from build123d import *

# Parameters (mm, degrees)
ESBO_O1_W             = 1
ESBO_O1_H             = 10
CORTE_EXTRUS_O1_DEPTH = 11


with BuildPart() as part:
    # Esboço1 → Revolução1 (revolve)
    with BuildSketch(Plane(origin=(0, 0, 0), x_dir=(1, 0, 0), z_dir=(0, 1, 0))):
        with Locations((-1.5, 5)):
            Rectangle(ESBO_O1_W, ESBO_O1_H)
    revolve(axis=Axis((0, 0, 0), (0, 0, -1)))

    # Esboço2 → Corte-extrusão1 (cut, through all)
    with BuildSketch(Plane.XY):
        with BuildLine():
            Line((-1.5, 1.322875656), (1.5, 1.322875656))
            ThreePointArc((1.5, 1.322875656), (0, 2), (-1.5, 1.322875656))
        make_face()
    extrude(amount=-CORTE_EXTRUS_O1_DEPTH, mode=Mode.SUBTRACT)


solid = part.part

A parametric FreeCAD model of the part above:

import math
import FreeCAD as App
import Part
import Sketcher

V = App.Vector
Q = App.Units.Quantity


def add_polygon(sketch, points):
    """Adds a closed chain of lines whose ends are joined by coincident constraints."""
    first, n = sketch.GeometryCount, len(points)
    for a, b in zip(points, points[1:] + points[:1]):
        sketch.addGeometry(Part.LineSegment(App.Vector(*a, 0), App.Vector(*b, 0)), False)
    for i in range(n):
        sketch.addConstraint(Sketcher.Constraint("Coincident", first + i, 2, first + (i + 1) % n, 1))

doc = App.newDocument("Part")
body = doc.addObject("PartDesign::Body", "Body")

sketch1 = doc.addObject("Sketcher::SketchObject", "Sketch")
body.addObject(sketch1)
sketch1.AttachmentSupport = (doc.XZ_Plane, [""])
sketch1.MapMode = "FlatFace"
add_polygon(sketch1, [(-2, -10), (-2, 0), (-1, 0), (-1, -10)])
sketch1.addConstraint([
    Sketcher.Constraint("Vertical", 0),
    Sketcher.Constraint("Horizontal", 1),
    Sketcher.Constraint("Vertical", 2),
    Sketcher.Constraint("Horizontal", 3),
    Sketcher.Constraint("PointOnObject", 0, 2, -1),
    Sketcher.Constraint("DistanceX", 1, 1, 1, 2, Q("1 mm")),
    Sketcher.Constraint("DistanceY", 0, 1, 0, 2, Q("10 mm")),
    Sketcher.Constraint("DistanceX", 0, 2, -1, 1, Q("2 mm")),
])
revolution = doc.addObject("PartDesign::Revolution", "Revolution")
body.addObject(revolution)
revolution.Profile = sketch1
revolution.ReferenceAxis = (sketch1, ["V_Axis"])
revolution.Angle = 360

sketch2 = doc.addObject("Sketcher::SketchObject", "Sketch001")
body.addObject(sketch2)
sketch2.AttachmentSupport = (doc.XY_Plane, [""])
sketch2.MapMode = "FlatFace"
sketch2.addGeometry([
    Part.LineSegment(V(-1.5, 1.3, 0), V(1.5, 1.3, 0)),
    Part.ArcOfCircle(Part.Circle(V(0, 0, 0), V(0, 0, 1), 2), math.radians(41), math.radians(139)),
], False)
sketch2.addConstraint([
    Sketcher.Constraint("Coincident", 0, 1, 1, 2),
    Sketcher.Constraint("Coincident", 1, 1, 0, 2),
    Sketcher.Constraint("Horizontal", 0),
    Sketcher.Constraint("Coincident", 1, 3, -1, 1),
    Sketcher.Constraint("Radius", 1, Q("2 mm")),
    Sketcher.Constraint("DistanceX", 0, 1, 0, 2, Q("3 mm")),
])
pocket1 = doc.addObject("PartDesign::Pocket", "Pocket")
body.addObject(pocket1)
pocket1.Profile = sketch2
pocket1.Type = "ThroughAll"

doc.recompute()
